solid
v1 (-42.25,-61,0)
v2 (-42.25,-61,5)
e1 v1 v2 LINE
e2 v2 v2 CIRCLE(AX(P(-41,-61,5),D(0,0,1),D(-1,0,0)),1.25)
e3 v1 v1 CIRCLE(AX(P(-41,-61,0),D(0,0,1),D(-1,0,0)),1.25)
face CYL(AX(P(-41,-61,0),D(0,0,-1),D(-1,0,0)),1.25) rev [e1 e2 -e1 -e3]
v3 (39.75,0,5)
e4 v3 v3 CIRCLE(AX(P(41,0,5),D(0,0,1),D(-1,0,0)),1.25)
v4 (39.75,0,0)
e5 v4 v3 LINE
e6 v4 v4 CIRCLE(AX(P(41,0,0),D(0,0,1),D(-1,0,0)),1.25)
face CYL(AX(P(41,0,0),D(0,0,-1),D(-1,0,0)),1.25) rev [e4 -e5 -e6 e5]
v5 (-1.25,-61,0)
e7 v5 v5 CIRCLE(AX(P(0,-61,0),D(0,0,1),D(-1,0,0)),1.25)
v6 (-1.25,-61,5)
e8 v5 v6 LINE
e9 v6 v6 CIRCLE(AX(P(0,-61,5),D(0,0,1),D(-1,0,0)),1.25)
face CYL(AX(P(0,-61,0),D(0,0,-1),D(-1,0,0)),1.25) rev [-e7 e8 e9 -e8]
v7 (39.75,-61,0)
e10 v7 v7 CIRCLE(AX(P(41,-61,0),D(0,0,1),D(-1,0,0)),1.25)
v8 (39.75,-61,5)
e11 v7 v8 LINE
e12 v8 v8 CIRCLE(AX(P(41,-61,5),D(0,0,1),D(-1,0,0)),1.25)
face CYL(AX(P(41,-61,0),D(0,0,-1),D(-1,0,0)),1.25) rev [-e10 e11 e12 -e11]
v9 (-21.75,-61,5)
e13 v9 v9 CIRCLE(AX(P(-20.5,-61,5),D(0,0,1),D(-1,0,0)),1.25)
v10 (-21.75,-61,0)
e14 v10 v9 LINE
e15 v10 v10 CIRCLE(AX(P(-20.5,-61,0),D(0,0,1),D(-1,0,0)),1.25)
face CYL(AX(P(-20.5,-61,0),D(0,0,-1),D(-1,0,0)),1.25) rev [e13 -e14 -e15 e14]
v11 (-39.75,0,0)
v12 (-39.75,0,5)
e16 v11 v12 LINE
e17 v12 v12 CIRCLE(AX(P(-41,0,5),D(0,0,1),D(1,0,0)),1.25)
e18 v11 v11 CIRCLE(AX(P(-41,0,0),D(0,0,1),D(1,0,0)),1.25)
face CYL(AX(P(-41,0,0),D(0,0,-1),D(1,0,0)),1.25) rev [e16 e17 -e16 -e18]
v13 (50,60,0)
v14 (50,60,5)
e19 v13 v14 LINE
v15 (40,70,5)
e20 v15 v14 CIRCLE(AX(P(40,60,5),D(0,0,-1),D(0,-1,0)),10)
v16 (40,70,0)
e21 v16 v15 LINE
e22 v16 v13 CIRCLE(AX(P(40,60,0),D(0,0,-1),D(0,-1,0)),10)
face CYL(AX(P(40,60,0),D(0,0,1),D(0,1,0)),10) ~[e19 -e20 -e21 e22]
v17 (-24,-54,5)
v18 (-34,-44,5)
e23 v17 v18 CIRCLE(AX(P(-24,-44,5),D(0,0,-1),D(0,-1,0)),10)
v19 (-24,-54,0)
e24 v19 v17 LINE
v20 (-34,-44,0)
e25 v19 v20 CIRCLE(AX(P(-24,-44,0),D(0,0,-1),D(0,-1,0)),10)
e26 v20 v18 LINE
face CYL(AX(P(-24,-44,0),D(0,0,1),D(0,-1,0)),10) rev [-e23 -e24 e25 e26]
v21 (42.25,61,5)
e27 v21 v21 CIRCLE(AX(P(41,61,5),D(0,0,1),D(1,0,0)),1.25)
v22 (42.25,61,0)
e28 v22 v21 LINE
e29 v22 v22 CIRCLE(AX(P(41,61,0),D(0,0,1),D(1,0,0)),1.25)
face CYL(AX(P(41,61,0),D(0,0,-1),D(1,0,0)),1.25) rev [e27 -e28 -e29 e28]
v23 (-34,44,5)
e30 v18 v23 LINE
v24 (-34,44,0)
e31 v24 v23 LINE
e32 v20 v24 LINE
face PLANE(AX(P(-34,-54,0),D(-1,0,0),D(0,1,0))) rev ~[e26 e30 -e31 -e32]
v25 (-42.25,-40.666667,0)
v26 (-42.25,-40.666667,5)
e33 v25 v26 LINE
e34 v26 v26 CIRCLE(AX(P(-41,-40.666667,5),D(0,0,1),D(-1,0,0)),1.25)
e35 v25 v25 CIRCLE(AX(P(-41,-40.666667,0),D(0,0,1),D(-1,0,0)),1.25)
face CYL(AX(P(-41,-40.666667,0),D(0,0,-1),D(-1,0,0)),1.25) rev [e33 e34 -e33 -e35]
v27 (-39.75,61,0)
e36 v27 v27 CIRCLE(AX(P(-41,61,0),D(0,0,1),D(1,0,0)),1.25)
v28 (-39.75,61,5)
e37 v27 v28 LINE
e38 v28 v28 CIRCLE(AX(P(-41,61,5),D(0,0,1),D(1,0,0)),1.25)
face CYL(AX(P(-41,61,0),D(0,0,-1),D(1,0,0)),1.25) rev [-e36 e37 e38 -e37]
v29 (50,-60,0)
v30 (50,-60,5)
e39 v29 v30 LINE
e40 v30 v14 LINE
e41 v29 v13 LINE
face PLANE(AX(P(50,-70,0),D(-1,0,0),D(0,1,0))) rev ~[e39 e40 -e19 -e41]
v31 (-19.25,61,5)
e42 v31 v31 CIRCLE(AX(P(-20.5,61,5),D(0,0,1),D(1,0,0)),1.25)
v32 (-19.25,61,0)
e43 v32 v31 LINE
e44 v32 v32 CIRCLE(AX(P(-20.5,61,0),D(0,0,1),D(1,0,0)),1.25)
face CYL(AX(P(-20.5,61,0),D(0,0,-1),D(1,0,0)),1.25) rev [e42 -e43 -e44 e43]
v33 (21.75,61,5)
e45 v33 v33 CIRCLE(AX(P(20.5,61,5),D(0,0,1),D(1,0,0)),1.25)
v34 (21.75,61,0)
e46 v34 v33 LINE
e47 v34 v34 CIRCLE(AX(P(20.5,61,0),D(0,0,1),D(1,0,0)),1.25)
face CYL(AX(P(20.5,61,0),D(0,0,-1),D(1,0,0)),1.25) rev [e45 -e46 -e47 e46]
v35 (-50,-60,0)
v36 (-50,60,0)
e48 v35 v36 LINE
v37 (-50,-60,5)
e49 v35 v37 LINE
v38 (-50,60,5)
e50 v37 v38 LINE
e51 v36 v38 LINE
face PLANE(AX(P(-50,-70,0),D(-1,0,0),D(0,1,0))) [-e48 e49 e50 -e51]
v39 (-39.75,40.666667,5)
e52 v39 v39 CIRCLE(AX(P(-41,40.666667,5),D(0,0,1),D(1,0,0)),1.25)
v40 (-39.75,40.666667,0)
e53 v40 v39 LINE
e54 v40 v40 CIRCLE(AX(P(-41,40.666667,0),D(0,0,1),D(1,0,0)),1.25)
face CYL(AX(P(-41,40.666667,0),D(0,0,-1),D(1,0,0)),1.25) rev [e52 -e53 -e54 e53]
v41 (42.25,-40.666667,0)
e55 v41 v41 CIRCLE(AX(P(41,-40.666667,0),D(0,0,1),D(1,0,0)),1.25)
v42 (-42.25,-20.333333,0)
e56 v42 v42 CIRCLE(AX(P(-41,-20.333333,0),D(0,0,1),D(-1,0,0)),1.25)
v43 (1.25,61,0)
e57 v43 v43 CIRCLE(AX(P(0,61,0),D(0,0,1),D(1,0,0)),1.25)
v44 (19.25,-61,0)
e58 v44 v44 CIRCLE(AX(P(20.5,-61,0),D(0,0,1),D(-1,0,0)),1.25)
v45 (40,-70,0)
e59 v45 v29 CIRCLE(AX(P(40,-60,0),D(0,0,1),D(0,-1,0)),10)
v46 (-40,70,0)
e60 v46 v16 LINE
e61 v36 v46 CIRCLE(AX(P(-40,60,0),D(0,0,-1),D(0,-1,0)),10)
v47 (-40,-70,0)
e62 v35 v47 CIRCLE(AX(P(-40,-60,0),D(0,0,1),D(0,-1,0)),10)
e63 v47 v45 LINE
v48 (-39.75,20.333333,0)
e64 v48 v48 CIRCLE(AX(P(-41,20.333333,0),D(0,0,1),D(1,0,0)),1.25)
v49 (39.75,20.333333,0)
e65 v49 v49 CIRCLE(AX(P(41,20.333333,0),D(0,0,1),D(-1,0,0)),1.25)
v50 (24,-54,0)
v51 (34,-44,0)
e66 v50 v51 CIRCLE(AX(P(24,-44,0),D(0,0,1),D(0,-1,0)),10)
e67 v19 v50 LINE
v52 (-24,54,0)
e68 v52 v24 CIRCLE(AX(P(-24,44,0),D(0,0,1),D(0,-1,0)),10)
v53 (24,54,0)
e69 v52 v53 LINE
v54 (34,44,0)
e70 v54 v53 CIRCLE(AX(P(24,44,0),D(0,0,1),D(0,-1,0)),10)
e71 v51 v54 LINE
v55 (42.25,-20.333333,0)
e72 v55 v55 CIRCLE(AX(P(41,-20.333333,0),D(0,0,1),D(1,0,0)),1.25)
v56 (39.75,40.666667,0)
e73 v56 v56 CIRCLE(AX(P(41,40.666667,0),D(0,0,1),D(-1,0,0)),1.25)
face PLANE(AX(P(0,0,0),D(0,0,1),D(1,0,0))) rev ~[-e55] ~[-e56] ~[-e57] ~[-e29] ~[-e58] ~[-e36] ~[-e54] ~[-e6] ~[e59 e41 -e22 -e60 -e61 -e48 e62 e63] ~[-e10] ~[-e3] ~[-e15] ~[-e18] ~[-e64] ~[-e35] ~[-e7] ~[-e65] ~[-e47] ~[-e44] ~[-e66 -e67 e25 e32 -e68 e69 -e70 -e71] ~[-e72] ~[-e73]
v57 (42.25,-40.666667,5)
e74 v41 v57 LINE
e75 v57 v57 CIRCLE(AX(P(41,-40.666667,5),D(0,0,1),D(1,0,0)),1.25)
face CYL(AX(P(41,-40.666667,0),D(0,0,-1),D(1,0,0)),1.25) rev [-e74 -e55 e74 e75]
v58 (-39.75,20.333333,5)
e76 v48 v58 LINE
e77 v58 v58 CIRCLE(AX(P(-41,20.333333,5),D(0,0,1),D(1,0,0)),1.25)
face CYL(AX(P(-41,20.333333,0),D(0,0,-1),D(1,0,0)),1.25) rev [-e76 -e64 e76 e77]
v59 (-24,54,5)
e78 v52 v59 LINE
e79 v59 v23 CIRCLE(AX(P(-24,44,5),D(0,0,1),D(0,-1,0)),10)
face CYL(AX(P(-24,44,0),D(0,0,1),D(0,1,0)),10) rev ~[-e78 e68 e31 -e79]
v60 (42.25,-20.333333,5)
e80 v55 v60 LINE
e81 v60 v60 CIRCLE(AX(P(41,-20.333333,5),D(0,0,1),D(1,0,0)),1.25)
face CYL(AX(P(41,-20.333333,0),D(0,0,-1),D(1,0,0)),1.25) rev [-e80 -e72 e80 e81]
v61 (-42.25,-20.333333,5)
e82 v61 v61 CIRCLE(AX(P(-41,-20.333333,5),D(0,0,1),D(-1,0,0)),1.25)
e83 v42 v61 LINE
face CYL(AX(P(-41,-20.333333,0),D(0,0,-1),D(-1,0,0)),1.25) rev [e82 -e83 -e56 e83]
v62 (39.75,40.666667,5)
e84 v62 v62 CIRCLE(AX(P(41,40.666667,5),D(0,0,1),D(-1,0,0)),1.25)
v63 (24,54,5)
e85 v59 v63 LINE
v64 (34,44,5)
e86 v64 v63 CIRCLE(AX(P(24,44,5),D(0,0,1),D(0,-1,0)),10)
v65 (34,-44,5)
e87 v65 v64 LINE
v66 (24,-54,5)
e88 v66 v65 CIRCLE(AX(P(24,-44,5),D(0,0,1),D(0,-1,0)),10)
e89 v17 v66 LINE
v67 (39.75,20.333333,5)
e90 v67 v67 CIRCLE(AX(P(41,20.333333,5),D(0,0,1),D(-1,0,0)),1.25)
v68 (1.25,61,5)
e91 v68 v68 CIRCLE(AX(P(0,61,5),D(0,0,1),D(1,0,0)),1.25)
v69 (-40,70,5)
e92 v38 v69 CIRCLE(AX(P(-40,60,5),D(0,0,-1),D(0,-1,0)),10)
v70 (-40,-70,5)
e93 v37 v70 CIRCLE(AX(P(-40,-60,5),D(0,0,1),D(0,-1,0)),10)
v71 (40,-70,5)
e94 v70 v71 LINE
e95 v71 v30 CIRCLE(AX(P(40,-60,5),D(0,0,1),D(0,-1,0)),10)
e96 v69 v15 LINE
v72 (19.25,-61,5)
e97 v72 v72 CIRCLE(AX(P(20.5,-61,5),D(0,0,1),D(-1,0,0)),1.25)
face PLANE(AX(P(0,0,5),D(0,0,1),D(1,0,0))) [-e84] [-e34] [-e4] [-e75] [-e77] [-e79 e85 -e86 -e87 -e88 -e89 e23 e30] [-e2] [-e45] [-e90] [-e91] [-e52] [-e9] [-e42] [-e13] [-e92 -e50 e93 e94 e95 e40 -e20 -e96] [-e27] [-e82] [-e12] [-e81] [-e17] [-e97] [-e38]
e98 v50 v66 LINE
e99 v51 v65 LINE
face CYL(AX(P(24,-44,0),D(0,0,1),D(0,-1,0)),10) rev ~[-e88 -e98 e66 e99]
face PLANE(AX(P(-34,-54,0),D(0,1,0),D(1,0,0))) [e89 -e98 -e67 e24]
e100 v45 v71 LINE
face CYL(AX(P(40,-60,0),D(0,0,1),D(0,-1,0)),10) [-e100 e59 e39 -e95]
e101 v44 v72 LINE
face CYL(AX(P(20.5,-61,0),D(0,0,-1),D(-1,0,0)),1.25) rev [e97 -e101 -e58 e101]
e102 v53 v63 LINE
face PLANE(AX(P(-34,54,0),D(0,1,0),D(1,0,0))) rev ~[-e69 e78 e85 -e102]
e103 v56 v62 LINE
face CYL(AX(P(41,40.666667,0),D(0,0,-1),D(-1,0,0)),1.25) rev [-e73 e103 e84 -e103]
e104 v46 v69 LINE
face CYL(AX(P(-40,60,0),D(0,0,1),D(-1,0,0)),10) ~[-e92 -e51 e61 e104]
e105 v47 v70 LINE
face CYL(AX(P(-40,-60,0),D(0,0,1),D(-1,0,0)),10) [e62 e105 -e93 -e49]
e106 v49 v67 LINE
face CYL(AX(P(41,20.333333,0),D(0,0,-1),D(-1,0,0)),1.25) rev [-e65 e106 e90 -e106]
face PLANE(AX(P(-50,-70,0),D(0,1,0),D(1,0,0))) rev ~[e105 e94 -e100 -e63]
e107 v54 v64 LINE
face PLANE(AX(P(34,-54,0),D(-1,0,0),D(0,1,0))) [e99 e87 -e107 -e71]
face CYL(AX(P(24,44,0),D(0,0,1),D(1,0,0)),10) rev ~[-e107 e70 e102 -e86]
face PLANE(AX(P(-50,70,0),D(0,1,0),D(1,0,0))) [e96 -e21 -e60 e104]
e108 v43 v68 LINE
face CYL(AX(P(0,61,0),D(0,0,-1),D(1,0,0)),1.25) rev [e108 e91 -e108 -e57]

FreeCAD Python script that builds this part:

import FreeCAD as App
import Part
import Sketcher
from FreeCAD import Vector
Q = App.Units.Quantity


def edges_at(feature, points):
    """Names of the edges that pass closest to the given points."""
    edges = feature.Shape.Edges
    near = lambda p: min(range(len(edges)), key=lambda i: edges[i].distToShape(Part.Vertex(*p))[0])
    return sorted({f"Edge{near(p) + 1}" for p in points})

doc = App.newDocument("Part")
body = doc.addObject("PartDesign::Body", "Body")

# Sketch on XY plane
sketch1 = doc.addObject("Sketcher::SketchObject", "Sketch")
body.addObject(sketch1)
sketch1.AttachmentSupport = (doc.XY_Plane, [""])
sketch1.MapMode = "FlatFace"
sketch1.addGeometry([
    Part.LineSegment(Vector(-50, 70, 0), Vector(-50, -70, 0)),  # 0
    Part.LineSegment(Vector(-50, -70, 0), Vector(50, -70, 0)),  # 1
    Part.LineSegment(Vector(50, -70, 0), Vector(50, 70, 0)),  # 2
    Part.LineSegment(Vector(50, 70, 0), Vector(-50, 70, 0)),  # 3
    Part.Circle(Vector(-41, -61, 0), Vector(0, 0, 1), 1.2),  # 4
    Part.Circle(Vector(-41, -40.7, 0), Vector(0, 0, 1), 1.2),  # 5
    Part.Circle(Vector(-20.5, -61, 0), Vector(0, 0, 1), 1.2),  # 6
    Part.Circle(Vector(-41, -20.3, 0), Vector(0, 0, 1), 1.2),  # 7
    Part.Circle(Vector(-41, 0, 0), Vector(0, 0, 1), 1.2),  # 8
    Part.Circle(Vector(0, -61, 0), Vector(0, 0, 1), 1.2),  # 9
    Part.Circle(Vector(20.5, -61, 0), Vector(0, 0, 1), 1.2),  # 10
    Part.Circle(Vector(41, -61, 0), Vector(0, 0, 1), 1.2),  # 11
    Part.Circle(Vector(41, -40.7, 0), Vector(0, 0, 1), 1.2),  # 12
    Part.LineSegment(Vector(34, -54, 0), Vector(-34, -54, 0)),  # 13
    Part.LineSegment(Vector(-34, -54, 0), Vector(-34, 54, 0)),  # 14
    Part.LineSegment(Vector(-34, 54, 0), Vector(34, 54, 0)),  # 15
    Part.LineSegment(Vector(34, 54, 0), Vector(34, -54, 0)),  # 16
    Part.Circle(Vector(41, -20.3, 0), Vector(0, 0, 1), 1.2),  # 17
    Part.Circle(Vector(41, 0, 0), Vector(0, 0, 1), 1.2),  # 18
    Part.Circle(Vector(-41, 20.3, 0), Vector(0, 0, 1), 1.2),  # 19
    Part.Circle(Vector(-41, 40.7, 0), Vector(0, 0, 1), 1.2),  # 20
    Part.Circle(Vector(-41, 61, 0), Vector(0, 0, 1), 1.2),  # 21
    Part.Circle(Vector(-20.5, 61, 0), Vector(0, 0, 1), 1.2),  # 22
    Part.Circle(Vector(41, 20.3, 0), Vector(0, 0, 1), 1.2),  # 23
    Part.Circle(Vector(0, 61, 0), Vector(0, 0, 1), 1.2),  # 24
    Part.Circle(Vector(20.5, 61, 0), Vector(0, 0, 1), 1.2),  # 25
    Part.Circle(Vector(41, 40.7, 0), Vector(0, 0, 1), 1.2),  # 26
    Part.Circle(Vector(41, 61, 0), Vector(0, 0, 1), 1.2),  # 27
], False)
sketch1.addConstraint([
    Sketcher.Constraint("Coincident", 0, 2, 1, 1),
    Sketcher.Constraint("Coincident", 1, 2, 2, 1),
    Sketcher.Constraint("Coincident", 2, 2, 3, 1),
    Sketcher.Constraint("Coincident", 3, 2, 0, 1),
    Sketcher.Constraint("Coincident", 13, 2, 14, 1),
    Sketcher.Constraint("Coincident", 14, 2, 15, 1),
    Sketcher.Constraint("Coincident", 15, 2, 16, 1),
    Sketcher.Constraint("Coincident", 16, 2, 13, 1),
    Sketcher.Constraint("Vertical", 0),
    Sketcher.Constraint("Horizontal", 1),
    Sketcher.Constraint("Vertical", 2),
    Sketcher.Constraint("Horizontal", 3),
    Sketcher.Constraint("Horizontal", 13),
    Sketcher.Constraint("Vertical", 14),
    Sketcher.Constraint("Horizontal", 15),
    Sketcher.Constraint("Vertical", 16),
    Sketcher.Constraint("Equal", 4, 5),
    Sketcher.Constraint("Equal", 5, 6),
    Sketcher.Constraint("Equal", 6, 7),
    Sketcher.Constraint("Equal", 7, 8),
    Sketcher.Constraint("Equal", 8, 9),
    Sketcher.Constraint("Equal", 9, 10),
    Sketcher.Constraint("Equal", 10, 11),
    Sketcher.Constraint("Equal", 11, 12),
    Sketcher.Constraint("Equal", 12, 17),
    Sketcher.Constraint("Equal", 17, 18),
    Sketcher.Constraint("Equal", 18, 19),
    Sketcher.Constraint("Equal", 19, 20),
    Sketcher.Constraint("Equal", 20, 21),
    Sketcher.Constraint("Equal", 21, 22),
    Sketcher.Constraint("Equal", 22, 23),
    Sketcher.Constraint("Equal", 23, 24),
    Sketcher.Constraint("Equal", 24, 25),
    Sketcher.Constraint("Equal", 25, 26),
    Sketcher.Constraint("Equal", 26, 27),
    Sketcher.Constraint("Symmetric", 8, 3, 18, 3, -1, 1),
    Sketcher.Constraint("Symmetric", 17, 3, 19, 3, -1, 1),
    Sketcher.Constraint("Symmetric", 12, 3, 20, 3, -1, 1),
    Sketcher.Constraint("Symmetric", 11, 3, 21, 3, -1, 1),
    Sketcher.Constraint("Symmetric", 10, 3, 22, 3, -1, 1),
    Sketcher.Constraint("Symmetric", 7, 3, 23, 3, -1, 1),
    Sketcher.Constraint("Symmetric", 9, 3, 24, 3, -1, 1),
    Sketcher.Constraint("Symmetric", 6, 3, 25, 3, -1, 1),
    Sketcher.Constraint("Symmetric", 5, 3, 26, 3, -1, 1),
    Sketcher.Constraint("Symmetric", 4, 3, 27, 3, -1, 1),
    Sketcher.Constraint("Symmetric", 0, 2, 2, 2, -1, 1),
    Sketcher.Constraint("Symmetric", 13, 2, 15, 2, -1, 1),
    Sketcher.Constraint("Symmetric", 6, 3, 10, 3, -2),
    Sketcher.Constraint("Symmetric", 4, 3, 11, 3, -2),
    Sketcher.Constraint("Symmetric", 5, 3, 12, 3, -2),
    Sketcher.Constraint("Symmetric", 7, 3, 17, 3, -2),
    Sketcher.Constraint("PointOnObject", 8, 3, -1),
    Sketcher.Constraint("PointOnObject", 9, 3, -2),
    Sketcher.Constraint("Horizontal", 4, 3, 6, 3),
    Sketcher.Constraint("Horizontal", 6, 3, 9, 3),
    Sketcher.Constraint("Vertical", 4, 3, 5, 3),
    Sketcher.Constraint("Vertical", 5, 3, 7, 3),
    Sketcher.Constraint("Vertical", 7, 3, 8, 3),
    Sketcher.Constraint("Diameter", 4, Q("2.5 mm")),
    Sketcher.Constraint("DistanceX", 1, 1, 1, 2, Q("100 mm")),
    Sketcher.Constraint("DistanceX", 13, 2, 13, 1, Q("68 mm")),
    Sketcher.Constraint("DistanceY", 0, 2, 0, 1, Q("140 mm")),
    Sketcher.Constraint("DistanceY", 14, 1, 14, 2, Q("108 mm")),
    Sketcher.Constraint("DistanceX", 4, 3, -1, 1, Q("41 mm")),
    Sketcher.Constraint("DistanceY", 4, 3, -1, 1, Q("61 mm")),
    Sketcher.Constraint("DistanceX", 6, 3, 10, 3, Q("41 mm")),
    Sketcher.Constraint("DistanceY", 5, 3, 19, 3, Q("61 mm")),
    Sketcher.Constraint("DistanceY", 5, 3, -1, 1, Q("40.666667 mm")),
])
pad1 = doc.addObject("PartDesign::Pad", "Pad")
body.addObject(pad1)
pad1.Profile = sketch1
pad1.Length = 5
doc.recompute()

fillet = doc.addObject("PartDesign::Fillet", "Fillet")
body.addObject(fillet)
fillet.Base = (pad1, edges_at(pad1, [
    (50, -70, 2.5),
    (-50, -70, 2.5),
    (-50, 70, 2.5),
    (50, 70, 2.5),
    (34, -54, 2.5),
    (34, 54, 2.5),
    (-34, 54, 2.5),
    (-34, -54, 2.5),
]))
fillet.Radius = 10

doc.recompute()
